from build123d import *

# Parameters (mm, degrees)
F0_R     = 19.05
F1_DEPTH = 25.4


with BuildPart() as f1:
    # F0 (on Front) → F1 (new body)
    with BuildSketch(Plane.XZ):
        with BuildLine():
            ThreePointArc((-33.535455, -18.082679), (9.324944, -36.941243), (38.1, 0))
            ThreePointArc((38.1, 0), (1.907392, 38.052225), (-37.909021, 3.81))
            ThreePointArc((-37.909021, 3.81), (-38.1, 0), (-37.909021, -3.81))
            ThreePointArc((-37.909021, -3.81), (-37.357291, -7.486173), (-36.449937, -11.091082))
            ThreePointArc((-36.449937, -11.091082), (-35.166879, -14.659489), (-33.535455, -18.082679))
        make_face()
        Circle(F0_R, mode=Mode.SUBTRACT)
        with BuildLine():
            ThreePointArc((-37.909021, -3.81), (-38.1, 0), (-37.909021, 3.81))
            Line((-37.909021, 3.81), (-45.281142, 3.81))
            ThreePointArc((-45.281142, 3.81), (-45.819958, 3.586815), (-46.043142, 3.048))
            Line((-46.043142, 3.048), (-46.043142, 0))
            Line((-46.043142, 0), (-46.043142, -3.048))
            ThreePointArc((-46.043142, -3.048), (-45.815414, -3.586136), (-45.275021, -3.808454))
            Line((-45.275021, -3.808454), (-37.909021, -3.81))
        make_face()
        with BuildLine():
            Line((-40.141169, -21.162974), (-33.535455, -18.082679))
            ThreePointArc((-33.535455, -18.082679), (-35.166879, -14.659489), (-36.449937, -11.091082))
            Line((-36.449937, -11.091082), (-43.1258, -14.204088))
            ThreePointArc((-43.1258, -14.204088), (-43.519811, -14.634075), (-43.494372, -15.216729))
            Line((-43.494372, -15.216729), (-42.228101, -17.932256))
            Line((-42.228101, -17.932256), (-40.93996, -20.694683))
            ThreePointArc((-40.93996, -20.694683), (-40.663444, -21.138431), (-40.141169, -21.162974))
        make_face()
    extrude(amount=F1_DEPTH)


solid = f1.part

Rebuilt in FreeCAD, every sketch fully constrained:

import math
import FreeCAD as App
import Part
import Sketcher
Q = App.Units.Quantity

doc = App.newDocument("Part")
body = doc.addObject("PartDesign::Body", "Body")

# Sketch on XZ plane
sketch1 = body.newObject("Sketcher::SketchObject", "Sketch")
sketch1.AttachmentSupport = (doc.getObject("XZ_Plane"), [""])
sketch1.MapMode = "FlatFace"
sketch1.addGeometry(Part.ArcOfCircle(Part.Circle(App.Vector(0, 0, 0), App.Vector(0, 0, 1), 38.1), math.radians(-152), math.radians(0)), False)
sketch1.addGeometry(Part.ArcOfCircle(Part.Circle(App.Vector(0, 0, 0), App.Vector(0, 0, 1), 38.1), math.radians(0), math.radians(174)), False)
sketch1.addGeometry(Part.LineSegment(App.Vector(-37.9, 3.8, 0), App.Vector(-45.3, 3.8, 0)), False)
sketch1.addGeometry(Part.ArcOfCircle(Part.Circle(App.Vector(-45.3, 3, 0), App.Vector(0, 0, 1), 0.8), math.radians(90), math.radians(180)), False)
sketch1.addGeometry(Part.LineSegment(App.Vector(-46, 3, 0), App.Vector(-46, -3, 0)), False)
sketch1.addGeometry(Part.ArcOfCircle(Part.Circle(App.Vector(-45.3, -3, 0), App.Vector(0, 0, 1), 0.8), math.radians(-179), math.radians(-90)), False)
sketch1.addGeometry(Part.LineSegment(App.Vector(-45.3, -3.8, 0), App.Vector(-37.9, -3.8, 0)), False)
sketch1.addGeometry(Part.ArcOfCircle(Part.Circle(App.Vector(0, 0, 0), App.Vector(0, 0, 1), 38.1), math.radians(-174.26), math.radians(-163.08)), False)
sketch1.addGeometry(Part.LineSegment(App.Vector(-36.4, -11.1, 0), App.Vector(-43.1, -14.2, 0)), False)
sketch1.addGeometry(Part.ArcOfCircle(Part.Circle(App.Vector(-42.8, -14.9, 0), App.Vector(0, 0, 1), 0.8), math.radians(115), math.radians(205)), False)
sketch1.addGeometry(Part.LineSegment(App.Vector(-43.5, -15.2, 0), App.Vector(-42.2, -17.9, 0)), False)
sketch1.addGeometry(Part.LineSegment(App.Vector(-42.2, -17.9, 0), App.Vector(-40.9, -20.7, 0)), False)
sketch1.addGeometry(Part.ArcOfCircle(Part.Circle(App.Vector(-40.4, -20.7, 0), App.Vector(0, 0, 1), 0.6), math.radians(-176), math.radians(-65)), False)
sketch1.addGeometry(Part.LineSegment(App.Vector(-40.1, -21.2, 0), App.Vector(-33.5, -18.1, 0)), False)
sketch1.addGeometry(Part.Circle(App.Vector(0, 0, 0), App.Vector(0, 0, 1), 19.1), False)
sketch1.addConstraint(Sketcher.Constraint("Tangent", 0, 2, 1, 1))
sketch1.addConstraint(Sketcher.Constraint("Coincident", 1, 2, 2, 1))
sketch1.addConstraint(Sketcher.Constraint("Tangent", 2, 2, 3, 1))
sketch1.addConstraint(Sketcher.Constraint("Tangent", 3, 2, 4, 1))
sketch1.addConstraint(Sketcher.Constraint("Coincident", 4, 2, 5, 1))
sketch1.addConstraint(Sketcher.Constraint("Tangent", 5, 2, 6, 1))
sketch1.addConstraint(Sketcher.Constraint("Coincident", 6, 2, 7, 1))
sketch1.addConstraint(Sketcher.Constraint("Coincident", 7, 2, 8, 1))
sketch1.addConstraint(Sketcher.Constraint("Tangent", 8, 2, 9, 1))
sketch1.addConstraint(Sketcher.Constraint("Tangent", 9, 2, 10, 1))
sketch1.addConstraint(Sketcher.Constraint("Coincident", 10, 2, 11, 1))
sketch1.addConstraint(Sketcher.Constraint("Coincident", 11, 2, 12, 1))
sketch1.addConstraint(Sketcher.Constraint("Tangent", 12, 2, 13, 1))
sketch1.addConstraint(Sketcher.Constraint("Coincident", 13, 2, 0, 1))
sketch1.addConstraint(Sketcher.Constraint("Horizontal", 2))
sketch1.addConstraint(Sketcher.Constraint("Vertical", 4))
sketch1.addConstraint(Sketcher.Constraint("Coincident", 0, 3, -1, 1))
sketch1.addConstraint(Sketcher.Constraint("Coincident", 14, 3, -1, 1))
sketch1.addConstraint(Sketcher.Constraint("Equal", 0, 1))
sketch1.addConstraint(Sketcher.Constraint("Equal", 3, 9))
sketch1.addConstraint(Sketcher.Constraint("Symmetric", 1, 2, 6, 2, -1))
sketch1.addConstraint(Sketcher.Constraint("PointOnObject", 0, 2, -1))
sketch1.addConstraint(Sketcher.Constraint("Perpendicular", 8, 10))
sketch1.addConstraint(Sketcher.Constraint("Parallel", 10, 11))
sketch1.addConstraint(Sketcher.Constraint("Perpendicular", 11, 13))
sketch1.addConstraint(Sketcher.Constraint("Equal", 6, 8))
sketch1.addConstraint(Sketcher.Constraint("Diameter", 14, Q("1.5 in")))
sketch1.addConstraint(Sketcher.Constraint("Radius", 0, Q("1.5 in")))
sketch1.addConstraint(Sketcher.Constraint("Radius", 3, Q("0.03 in")))
sketch1.addConstraint(Sketcher.Constraint("Angle", 8, Q("-155 deg")))
sketch1.addConstraint(Sketcher.Constraint("DistanceY", 4, 2, 4, 1, Q("0.24 in")))
sketch1.addConstraint(Sketcher.Constraint("DistanceY", 6, 2, 1, 2, Q("0.3 in")))
sketch1.addConstraint(Sketcher.Constraint("Distance", 6, Q("0.29 in")))
sketch1.addConstraint(Sketcher.Constraint("Distance", 11, Q("0.12 in")))
sketch1.addConstraint(Sketcher.Constraint("DistanceY", 7, 3, 3, 3, Q("0.1199998 in")))
sketch1.addConstraint(Sketcher.Constraint("Radius", 5, 0.768322))
sketch1.addConstraint(Sketcher.Constraint("Radius", 7, 38.100036))
sketch1.addConstraint(Sketcher.Constraint("Radius", 12, 0.562575))
sketch1.addConstraint(Sketcher.Constraint("Distance", 13, 7.288599))
sketch1.addConstraint(Sketcher.Constraint("DistanceX", 2, 2, 2, 1, 7.372121))
sketch1.addConstraint(Sketcher.Constraint("DistanceX", 8, 2, -1, 1, 43.1258))
sketch1.addConstraint(Sketcher.Constraint("DistanceX", 10, 2, -1, 1, 42.228101))
pad1 = body.newObject("PartDesign::Pad", "Pad")
pad1.Profile = sketch1
pad1.Length = Q("1 in")

doc.recompute()
